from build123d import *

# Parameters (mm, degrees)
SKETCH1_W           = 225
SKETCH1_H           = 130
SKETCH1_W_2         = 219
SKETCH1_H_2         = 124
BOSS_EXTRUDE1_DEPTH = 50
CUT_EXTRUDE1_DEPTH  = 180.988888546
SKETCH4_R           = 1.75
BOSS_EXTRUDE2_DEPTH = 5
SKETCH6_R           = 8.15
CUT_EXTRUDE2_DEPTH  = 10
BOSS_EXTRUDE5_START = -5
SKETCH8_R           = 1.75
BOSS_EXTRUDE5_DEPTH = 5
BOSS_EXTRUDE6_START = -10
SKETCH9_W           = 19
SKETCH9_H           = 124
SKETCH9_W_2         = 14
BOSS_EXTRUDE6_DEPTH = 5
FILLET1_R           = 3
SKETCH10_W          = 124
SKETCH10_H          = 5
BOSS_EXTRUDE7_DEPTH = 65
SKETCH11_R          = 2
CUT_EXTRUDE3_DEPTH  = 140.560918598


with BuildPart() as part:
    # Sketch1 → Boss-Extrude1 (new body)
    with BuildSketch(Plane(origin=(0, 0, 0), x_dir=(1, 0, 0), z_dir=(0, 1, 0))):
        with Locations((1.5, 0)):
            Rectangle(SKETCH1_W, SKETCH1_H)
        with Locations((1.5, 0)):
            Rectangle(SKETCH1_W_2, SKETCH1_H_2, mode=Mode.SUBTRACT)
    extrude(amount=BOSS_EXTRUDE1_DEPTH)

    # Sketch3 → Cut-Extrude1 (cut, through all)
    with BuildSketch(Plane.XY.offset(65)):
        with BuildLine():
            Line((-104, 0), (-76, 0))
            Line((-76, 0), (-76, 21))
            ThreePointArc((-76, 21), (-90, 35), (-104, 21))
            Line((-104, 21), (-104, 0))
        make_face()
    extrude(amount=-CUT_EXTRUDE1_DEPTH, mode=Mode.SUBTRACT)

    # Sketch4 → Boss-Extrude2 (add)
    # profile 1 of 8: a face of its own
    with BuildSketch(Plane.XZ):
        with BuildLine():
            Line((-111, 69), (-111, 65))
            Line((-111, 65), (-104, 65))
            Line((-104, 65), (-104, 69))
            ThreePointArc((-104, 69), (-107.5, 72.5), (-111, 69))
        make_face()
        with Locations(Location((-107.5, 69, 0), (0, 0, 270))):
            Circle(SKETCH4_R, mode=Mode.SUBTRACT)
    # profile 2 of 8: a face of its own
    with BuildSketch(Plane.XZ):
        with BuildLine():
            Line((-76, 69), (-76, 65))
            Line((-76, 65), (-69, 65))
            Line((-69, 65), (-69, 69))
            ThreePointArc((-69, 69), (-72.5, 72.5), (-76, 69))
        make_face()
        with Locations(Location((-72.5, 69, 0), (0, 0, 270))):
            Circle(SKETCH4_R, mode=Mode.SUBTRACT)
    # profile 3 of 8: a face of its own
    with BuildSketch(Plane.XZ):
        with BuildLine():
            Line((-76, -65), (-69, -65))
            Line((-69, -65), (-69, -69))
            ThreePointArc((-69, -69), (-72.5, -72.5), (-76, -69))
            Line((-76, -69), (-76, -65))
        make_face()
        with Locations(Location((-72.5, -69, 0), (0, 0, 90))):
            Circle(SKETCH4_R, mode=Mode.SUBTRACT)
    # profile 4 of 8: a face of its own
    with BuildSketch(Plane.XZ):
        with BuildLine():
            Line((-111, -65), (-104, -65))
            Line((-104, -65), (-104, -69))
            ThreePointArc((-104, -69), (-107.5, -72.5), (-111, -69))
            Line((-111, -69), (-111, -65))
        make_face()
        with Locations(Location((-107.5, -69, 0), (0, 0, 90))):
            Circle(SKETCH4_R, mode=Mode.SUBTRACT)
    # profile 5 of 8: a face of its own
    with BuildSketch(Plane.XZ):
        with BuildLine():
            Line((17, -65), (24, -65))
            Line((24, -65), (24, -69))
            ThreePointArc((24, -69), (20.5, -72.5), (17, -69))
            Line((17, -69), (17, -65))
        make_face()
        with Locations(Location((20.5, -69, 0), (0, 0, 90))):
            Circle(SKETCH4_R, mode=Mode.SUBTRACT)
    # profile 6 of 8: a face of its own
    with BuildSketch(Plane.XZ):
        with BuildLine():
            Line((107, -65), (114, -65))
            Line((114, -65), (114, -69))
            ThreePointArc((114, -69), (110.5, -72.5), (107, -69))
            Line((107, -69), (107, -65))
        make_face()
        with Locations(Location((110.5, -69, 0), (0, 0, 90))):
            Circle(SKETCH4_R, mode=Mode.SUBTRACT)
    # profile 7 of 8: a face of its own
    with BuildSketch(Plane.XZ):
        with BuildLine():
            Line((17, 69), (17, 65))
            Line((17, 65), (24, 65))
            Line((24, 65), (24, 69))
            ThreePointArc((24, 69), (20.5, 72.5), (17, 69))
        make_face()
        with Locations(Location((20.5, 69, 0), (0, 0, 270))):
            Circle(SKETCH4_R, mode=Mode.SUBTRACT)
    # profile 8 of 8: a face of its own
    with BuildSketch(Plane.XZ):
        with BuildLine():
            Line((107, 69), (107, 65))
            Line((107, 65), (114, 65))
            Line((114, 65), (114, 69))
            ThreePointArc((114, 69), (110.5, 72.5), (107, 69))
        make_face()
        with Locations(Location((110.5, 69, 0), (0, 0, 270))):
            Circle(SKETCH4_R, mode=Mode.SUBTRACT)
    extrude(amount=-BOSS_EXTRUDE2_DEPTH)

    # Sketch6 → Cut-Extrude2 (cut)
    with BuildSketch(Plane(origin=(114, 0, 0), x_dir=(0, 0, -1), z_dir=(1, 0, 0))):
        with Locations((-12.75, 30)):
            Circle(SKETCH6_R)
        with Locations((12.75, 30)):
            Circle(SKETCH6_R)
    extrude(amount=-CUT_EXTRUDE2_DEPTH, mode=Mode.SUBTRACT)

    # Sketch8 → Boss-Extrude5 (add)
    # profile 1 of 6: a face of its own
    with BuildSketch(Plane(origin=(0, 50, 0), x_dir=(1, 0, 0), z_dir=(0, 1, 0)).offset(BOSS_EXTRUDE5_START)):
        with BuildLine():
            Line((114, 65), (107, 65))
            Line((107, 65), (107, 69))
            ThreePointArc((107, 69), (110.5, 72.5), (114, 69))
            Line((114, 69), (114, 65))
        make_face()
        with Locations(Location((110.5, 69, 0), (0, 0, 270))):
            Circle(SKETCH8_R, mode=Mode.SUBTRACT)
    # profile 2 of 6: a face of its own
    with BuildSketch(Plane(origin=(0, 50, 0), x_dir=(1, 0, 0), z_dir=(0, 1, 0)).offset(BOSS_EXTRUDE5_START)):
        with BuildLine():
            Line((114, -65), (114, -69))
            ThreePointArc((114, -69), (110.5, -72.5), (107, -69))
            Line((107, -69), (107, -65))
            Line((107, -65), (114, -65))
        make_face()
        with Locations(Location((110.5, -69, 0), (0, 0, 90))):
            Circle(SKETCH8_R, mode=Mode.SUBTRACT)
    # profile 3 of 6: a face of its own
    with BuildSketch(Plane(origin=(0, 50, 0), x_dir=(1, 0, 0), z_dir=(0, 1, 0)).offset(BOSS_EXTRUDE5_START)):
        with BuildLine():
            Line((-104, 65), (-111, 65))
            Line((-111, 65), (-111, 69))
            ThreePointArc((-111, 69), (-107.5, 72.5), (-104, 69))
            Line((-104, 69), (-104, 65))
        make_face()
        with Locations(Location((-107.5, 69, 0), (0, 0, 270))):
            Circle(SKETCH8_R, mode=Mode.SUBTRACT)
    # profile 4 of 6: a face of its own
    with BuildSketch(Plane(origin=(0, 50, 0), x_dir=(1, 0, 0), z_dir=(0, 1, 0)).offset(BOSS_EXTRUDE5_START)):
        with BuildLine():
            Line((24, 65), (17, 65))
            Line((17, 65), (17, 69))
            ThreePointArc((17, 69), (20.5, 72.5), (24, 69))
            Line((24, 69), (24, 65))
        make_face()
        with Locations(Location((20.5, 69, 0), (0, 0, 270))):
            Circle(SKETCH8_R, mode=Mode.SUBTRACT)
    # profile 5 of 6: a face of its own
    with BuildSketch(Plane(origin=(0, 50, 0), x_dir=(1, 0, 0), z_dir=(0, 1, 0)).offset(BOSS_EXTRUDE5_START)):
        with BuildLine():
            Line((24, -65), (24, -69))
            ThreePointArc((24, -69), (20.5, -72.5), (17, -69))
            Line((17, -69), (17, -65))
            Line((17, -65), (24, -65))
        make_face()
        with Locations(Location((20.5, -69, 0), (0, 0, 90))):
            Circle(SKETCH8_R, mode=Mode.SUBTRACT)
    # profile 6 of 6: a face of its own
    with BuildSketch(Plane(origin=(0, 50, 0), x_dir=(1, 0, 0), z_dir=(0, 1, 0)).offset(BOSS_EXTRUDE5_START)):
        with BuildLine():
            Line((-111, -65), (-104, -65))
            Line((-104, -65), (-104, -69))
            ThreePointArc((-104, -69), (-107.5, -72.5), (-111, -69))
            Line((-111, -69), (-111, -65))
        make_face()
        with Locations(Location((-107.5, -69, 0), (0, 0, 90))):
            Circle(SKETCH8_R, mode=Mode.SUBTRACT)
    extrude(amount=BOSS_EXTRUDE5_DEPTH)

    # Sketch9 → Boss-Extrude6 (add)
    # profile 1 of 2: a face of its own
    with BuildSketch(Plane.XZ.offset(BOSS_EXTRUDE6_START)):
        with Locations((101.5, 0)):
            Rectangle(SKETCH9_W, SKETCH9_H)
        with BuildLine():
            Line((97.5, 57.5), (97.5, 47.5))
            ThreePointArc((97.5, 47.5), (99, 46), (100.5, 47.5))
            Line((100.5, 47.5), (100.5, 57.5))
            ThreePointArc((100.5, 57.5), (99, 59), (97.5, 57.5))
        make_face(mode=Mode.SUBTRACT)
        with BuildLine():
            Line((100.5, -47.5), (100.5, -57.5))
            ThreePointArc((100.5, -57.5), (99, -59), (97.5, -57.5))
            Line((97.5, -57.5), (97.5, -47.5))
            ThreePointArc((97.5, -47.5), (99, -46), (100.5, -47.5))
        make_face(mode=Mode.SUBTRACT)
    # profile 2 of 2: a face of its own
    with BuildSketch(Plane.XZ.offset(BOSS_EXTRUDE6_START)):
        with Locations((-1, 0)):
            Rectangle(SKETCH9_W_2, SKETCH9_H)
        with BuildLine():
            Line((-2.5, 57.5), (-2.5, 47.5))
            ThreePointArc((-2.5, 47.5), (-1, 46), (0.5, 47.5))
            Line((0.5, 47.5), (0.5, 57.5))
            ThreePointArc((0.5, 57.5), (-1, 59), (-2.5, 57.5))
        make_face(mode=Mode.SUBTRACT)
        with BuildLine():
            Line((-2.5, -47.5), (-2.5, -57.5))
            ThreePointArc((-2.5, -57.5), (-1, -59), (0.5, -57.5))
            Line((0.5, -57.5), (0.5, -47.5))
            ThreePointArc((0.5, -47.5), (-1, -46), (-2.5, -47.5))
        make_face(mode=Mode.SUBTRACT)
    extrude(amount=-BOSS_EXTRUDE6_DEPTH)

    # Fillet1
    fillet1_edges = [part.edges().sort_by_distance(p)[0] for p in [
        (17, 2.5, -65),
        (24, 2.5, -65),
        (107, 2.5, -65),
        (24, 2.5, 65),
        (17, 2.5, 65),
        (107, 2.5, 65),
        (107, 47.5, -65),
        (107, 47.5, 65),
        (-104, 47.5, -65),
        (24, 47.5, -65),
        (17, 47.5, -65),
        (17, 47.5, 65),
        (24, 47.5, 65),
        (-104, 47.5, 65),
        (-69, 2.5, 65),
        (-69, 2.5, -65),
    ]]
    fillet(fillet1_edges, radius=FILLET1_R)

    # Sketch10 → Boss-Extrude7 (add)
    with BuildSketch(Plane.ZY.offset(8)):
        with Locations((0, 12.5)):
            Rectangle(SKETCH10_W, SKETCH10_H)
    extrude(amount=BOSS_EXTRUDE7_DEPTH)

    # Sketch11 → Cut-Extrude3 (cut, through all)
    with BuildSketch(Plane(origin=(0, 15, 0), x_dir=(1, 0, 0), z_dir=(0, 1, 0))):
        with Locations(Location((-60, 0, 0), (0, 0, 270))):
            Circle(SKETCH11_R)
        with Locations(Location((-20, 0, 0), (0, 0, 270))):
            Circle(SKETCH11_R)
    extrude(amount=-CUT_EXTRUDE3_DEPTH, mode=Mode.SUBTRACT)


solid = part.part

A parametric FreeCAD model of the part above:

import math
import FreeCAD as App
import Part
import Sketcher
from FreeCAD import Vector
Q = App.Units.Quantity


def edges_at(feature, points):
    """Names of the edges that pass closest to the given points."""
    edges = feature.Shape.Edges
    near = lambda p: min(range(len(edges)), key=lambda i: edges[i].distToShape(Part.Vertex(*p))[0])
    return sorted({f"Edge{near(p) + 1}" for p in points})


def add_polygon(sketch, points):
    """Adds a closed chain of lines whose ends are joined by coincident constraints."""
    first, n = sketch.GeometryCount, len(points)
    for a, b in zip(points, points[1:] + points[:1]):
        sketch.addGeometry(Part.LineSegment(App.Vector(*a, 0), App.Vector(*b, 0)), False)
    for i in range(n):
        sketch.addConstraint(Sketcher.Constraint("Coincident", first + i, 2, first + (i + 1) % n, 1))

doc = App.newDocument("Part")
body = doc.addObject("PartDesign::Body", "Body")

# Sketch on XZ plane
sketch1 = body.newObject("Sketcher::SketchObject", "Sketch")
sketch1.AttachmentSupport = (doc.getObject("XZ_Plane"), [""])
sketch1.MapMode = "FlatFace"
add_polygon(sketch1, [(-111, -65), (-111, 65), (114, 65), (114, -65)])  # lines 0-3
add_polygon(sketch1, [(111, 62), (-108, 62), (-108, -62), (111, -62)])  # lines 4-7
sketch1.addConstraint(Sketcher.Constraint("Vertical", 0))
sketch1.addConstraint(Sketcher.Constraint("Horizontal", 1))
sketch1.addConstraint(Sketcher.Constraint("Vertical", 2))
sketch1.addConstraint(Sketcher.Constraint("Horizontal", 3))
sketch1.addConstraint(Sketcher.Constraint("Horizontal", 4))
sketch1.addConstraint(Sketcher.Constraint("Vertical", 5))
sketch1.addConstraint(Sketcher.Constraint("Horizontal", 6))
sketch1.addConstraint(Sketcher.Constraint("Vertical", 7))
sketch1.addConstraint(Sketcher.Constraint("DistanceX", 1, 1, 1, 2, Q("225 mm")))
sketch1.addConstraint(Sketcher.Constraint("DistanceX", 4, 2, 4, 1, Q("219 mm")))
sketch1.addConstraint(Sketcher.Constraint("DistanceY", 0, 1, 0, 2, Q("130 mm")))
sketch1.addConstraint(Sketcher.Constraint("DistanceY", 5, 2, 5, 1, Q("124 mm")))
sketch1.addConstraint(Sketcher.Constraint("DistanceX", 0, 2, -1, 1, Q("111 mm")))
sketch1.addConstraint(Sketcher.Constraint("DistanceY", -1, 1, 0, 2, Q("65 mm")))
sketch1.addConstraint(Sketcher.Constraint("DistanceX", 4, 2, -1, 1, Q("108 mm")))
sketch1.addConstraint(Sketcher.Constraint("DistanceY", -1, 1, 4, 2, Q("62 mm")))
pad1 = body.newObject("PartDesign::Pad", "Pad")
pad1.Profile = sketch1
pad1.Length = 50
pad1.Reversed = True

# Sketch on XY plane
sketch2 = body.newObject("Sketcher::SketchObject", "Sketch001")
sketch2.AttachmentSupport = (doc.getObject("XY_Plane"), [""])
sketch2.MapMode = "FlatFace"
sketch2.AttachmentOffset = App.Placement(Vector(0, 0, 65), App.Rotation())
sketch2.addGeometry(Part.LineSegment(Vector(-104, 0, 0), Vector(-76, 0, 0)), False)
sketch2.addGeometry(Part.LineSegment(Vector(-76, 0, 0), Vector(-76, 21, 0)), False)
sketch2.addGeometry(Part.ArcOfCircle(Part.Circle(Vector(-90, 21, 0), Vector(0, 0, 1), 14), math.radians(0), math.radians(180)), False)
sketch2.addGeometry(Part.LineSegment(Vector(-104, 21, 0), Vector(-104, 0, 0)), False)
sketch2.addConstraint(Sketcher.Constraint("Coincident", 0, 2, 1, 1))
sketch2.addConstraint(Sketcher.Constraint("Tangent", 1, 2, 2, 1))
sketch2.addConstraint(Sketcher.Constraint("Tangent", 2, 2, 3, 1))
sketch2.addConstraint(Sketcher.Constraint("Coincident", 3, 2, 0, 1))
sketch2.addConstraint(Sketcher.Constraint("Horizontal", 0))
sketch2.addConstraint(Sketcher.Constraint("Vertical", 1))
sketch2.addConstraint(Sketcher.Constraint("Vertical", 3))
sketch2.addConstraint(Sketcher.Constraint("PointOnObject", 0, 2, -1))
sketch2.addConstraint(Sketcher.Constraint("Radius", 2, Q("14 mm")))
sketch2.addConstraint(Sketcher.Constraint("DistanceY", 1, 1, 1, 2, Q("21 mm")))
sketch2.addConstraint(Sketcher.Constraint("DistanceX", 2, 3, -1, 1, Q("90 mm")))
pocket1 = body.newObject("PartDesign::Pocket", "Pocket")
pocket1.Profile = sketch2
pocket1.Type = "ThroughAll"

# Sketch on XZ plane
sketch3 = body.newObject("Sketcher::SketchObject", "Sketch002")
sketch3.AttachmentSupport = (doc.getObject("XZ_Plane"), [""])
sketch3.MapMode = "FlatFace"
sketch3.addGeometry(Part.LineSegment(Vector(-111, 69, 0), Vector(-111, 65, 0)), False)
sketch3.addGeometry(Part.LineSegment(Vector(-111, 65, 0), Vector(-104, 65, 0)), False)
sketch3.addGeometry(Part.LineSegment(Vector(-104, 65, 0), Vector(-104, 69, 0)), False)
sketch3.addGeometry(Part.ArcOfCircle(Part.Circle(Vector(-107.5, 69, 0), Vector(0, 0, 1), 3.5), math.radians(0), math.radians(180)), False)
sketch3.addGeometry(Part.Circle(Vector(-107.5, 69, 0), Vector(0, 0, 1), 1.8), False)
sketch3.addGeometry(Part.LineSegment(Vector(-76, 69, 0), Vector(-76, 65, 0)), False)
sketch3.addGeometry(Part.LineSegment(Vector(-76, 65, 0), Vector(-69, 65, 0)), False)
sketch3.addGeometry(Part.LineSegment(Vector(-69, 65, 0), Vector(-69, 69, 0)), False)
sketch3.addGeometry(Part.ArcOfCircle(Part.Circle(Vector(-72.5, 69, 0), Vector(0, 0, 1), 3.5), math.radians(0), math.radians(180)), False)
sketch3.addGeometry(Part.Circle(Vector(-72.5, 69, 0), Vector(0, 0, 1), 1.8), False)
sketch3.addGeometry(Part.LineSegment(Vector(-69, -65, 0), Vector(-76, -65, 0)), False)
sketch3.addGeometry(Part.LineSegment(Vector(-76, -65, 0), Vector(-76, -69, 0)), False)
sketch3.addGeometry(Part.ArcOfCircle(Part.Circle(Vector(-72.5, -69, 0), Vector(0, 0, 1), 3.5), math.radians(180), math.radians(360)), False)
sketch3.addGeometry(Part.LineSegment(Vector(-69, -69, 0), Vector(-69, -65, 0)), False)
sketch3.addGeometry(Part.Circle(Vector(-72.5, -69, 0), Vector(0, 0, 1), 1.8), False)
sketch3.addGeometry(Part.LineSegment(Vector(-104, -65, 0), Vector(-111, -65, 0)), False)
sketch3.addGeometry(Part.LineSegment(Vector(-111, -65, 0), Vector(-111, -69, 0)), False)
sketch3.addGeometry(Part.ArcOfCircle(Part.Circle(Vector(-107.5, -69, 0), Vector(0, 0, 1), 3.5), math.radians(180), math.radians(360)), False)
sketch3.addGeometry(Part.LineSegment(Vector(-104, -69, 0), Vector(-104, -65, 0)), False)
sketch3.addGeometry(Part.Circle(Vector(-107.5, -69, 0), Vector(0, 0, 1), 1.8), False)
sketch3.addGeometry(Part.LineSegment(Vector(24, -65, 0), Vector(17, -65, 0)), False)
sketch3.addGeometry(Part.LineSegment(Vector(17, -65, 0), Vector(17, -69, 0)), False)
sketch3.addGeometry(Part.ArcOfCircle(Part.Circle(Vector(20.5, -69, 0), Vector(0, 0, 1), 3.5), math.radians(180), math.radians(360)), False)
sketch3.addGeometry(Part.LineSegment(Vector(24, -69, 0), Vector(24, -65, 0)), False)
sketch3.addGeometry(Part.Circle(Vector(20.5, -69, 0), Vector(0, 0, 1), 1.8), False)
sketch3.addGeometry(Part.LineSegment(Vector(114, -65, 0), Vector(107, -65, 0)), False)
sketch3.addGeometry(Part.LineSegment(Vector(107, -65, 0), Vector(107, -69, 0)), False)
sketch3.addGeometry(Part.ArcOfCircle(Part.Circle(Vector(110.5, -69, 0), Vector(0, 0, 1), 3.5), math.radians(180), math.radians(360)), False)
sketch3.addGeometry(Part.LineSegment(Vector(114, -69, 0), Vector(114, -65, 0)), False)
sketch3.addGeometry(Part.Circle(Vector(110.5, -69, 0), Vector(0, 0, 1), 1.8), False)
sketch3.addGeometry(Part.LineSegment(Vector(17, 69, 0), Vector(17, 65, 0)), False)
sketch3.addGeometry(Part.LineSegment(Vector(17, 65, 0), Vector(24, 65, 0)), False)
sketch3.addGeometry(Part.LineSegment(Vector(24, 65, 0), Vector(24, 69, 0)), False)
sketch3.addGeometry(Part.ArcOfCircle(Part.Circle(Vector(20.5, 69, 0), Vector(0, 0, 1), 3.5), math.radians(0), math.radians(180)), False)
sketch3.addGeometry(Part.Circle(Vector(20.5, 69, 0), Vector(0, 0, 1), 1.8), False)
sketch3.addGeometry(Part.LineSegment(Vector(107, 69, 0), Vector(107, 65, 0)), False)
sketch3.addGeometry(Part.LineSegment(Vector(107, 65, 0), Vector(114, 65, 0)), False)
sketch3.addGeometry(Part.LineSegment(Vector(114, 65, 0), Vector(114, 69, 0)), False)
sketch3.addGeometry(Part.ArcOfCircle(Part.Circle(Vector(110.5, 69, 0), Vector(0, 0, 1), 3.5), math.radians(0), math.radians(180)), False)
sketch3.addGeometry(Part.Circle(Vector(110.5, 69, 0), Vector(0, 0, 1), 1.8), False)
sketch3.addConstraint(Sketcher.Constraint("Coincident", 0, 2, 1, 1))
sketch3.addConstraint(Sketcher.Constraint("Coincident", 1, 2, 2, 1))
sketch3.addConstraint(Sketcher.Constraint("Tangent", 2, 2, 3, 1))
sketch3.addConstraint(Sketcher.Constraint("Tangent", 3, 2, 0, 1))
sketch3.addConstraint(Sketcher.Constraint("Coincident", 5, 2, 6, 1))
sketch3.addConstraint(Sketcher.Constraint("Coincident", 6, 2, 7, 1))
sketch3.addConstraint(Sketcher.Constraint("Tangent", 7, 2, 8, 1))
sketch3.addConstraint(Sketcher.Constraint("Tangent", 8, 2, 5, 1))
sketch3.addConstraint(Sketcher.Constraint("Coincident", 10, 2, 11, 1))
sketch3.addConstraint(Sketcher.Constraint("Tangent", 11, 2, 12, 1))
sketch3.addConstraint(Sketcher.Constraint("Tangent", 12, 2, 13, 1))
sketch3.addConstraint(Sketcher.Constraint("Coincident", 13, 2, 10, 1))
sketch3.addConstraint(Sketcher.Constraint("Coincident", 15, 2, 16, 1))
sketch3.addConstraint(Sketcher.Constraint("Tangent", 16, 2, 17, 1))
sketch3.addConstraint(Sketcher.Constraint("Tangent", 17, 2, 18, 1))
sketch3.addConstraint(Sketcher.Constraint("Coincident", 18, 2, 15, 1))
sketch3.addConstraint(Sketcher.Constraint("Coincident", 20, 2, 21, 1))
sketch3.addConstraint(Sketcher.Constraint("Tangent", 21, 2, 22, 1))
sketch3.addConstraint(Sketcher.Constraint("Tangent", 22, 2, 23, 1))
sketch3.addConstraint(Sketcher.Constraint("Coincident", 23, 2, 20, 1))
sketch3.addConstraint(Sketcher.Constraint("Coincident", 25, 2, 26, 1))
sketch3.addConstraint(Sketcher.Constraint("Tangent", 26, 2, 27, 1))
sketch3.addConstraint(Sketcher.Constraint("Tangent", 27, 2, 28, 1))
sketch3.addConstraint(Sketcher.Constraint("Coincident", 28, 2, 25, 1))
sketch3.addConstraint(Sketcher.Constraint("Coincident", 30, 2, 31, 1))
sketch3.addConstraint(Sketcher.Constraint("Coincident", 31, 2, 32, 1))
sketch3.addConstraint(Sketcher.Constraint("Tangent", 32, 2, 33, 1))
sketch3.addConstraint(Sketcher.Constraint("Tangent", 33, 2, 30, 1))
sketch3.addConstraint(Sketcher.Constraint("Coincident", 35, 2, 36, 1))
sketch3.addConstraint(Sketcher.Constraint("Coincident", 36, 2, 37, 1))
sketch3.addConstraint(Sketcher.Constraint("Tangent", 37, 2, 38, 1))
sketch3.addConstraint(Sketcher.Constraint("Tangent", 38, 2, 35, 1))
sketch3.addConstraint(Sketcher.Constraint("Vertical", 0))
sketch3.addConstraint(Sketcher.Constraint("Horizontal", 1))
sketch3.addConstraint(Sketcher.Constraint("Vertical", 2))
sketch3.addConstraint(Sketcher.Constraint("Vertical", 5))
sketch3.addConstraint(Sketcher.Constraint("Horizontal", 6))
sketch3.addConstraint(Sketcher.Constraint("Vertical", 7))
sketch3.addConstraint(Sketcher.Constraint("Horizontal", 10))
sketch3.addConstraint(Sketcher.Constraint("Vertical", 11))
sketch3.addConstraint(Sketcher.Constraint("Vertical", 13))
sketch3.addConstraint(Sketcher.Constraint("Horizontal", 15))
sketch3.addConstraint(Sketcher.Constraint("Vertical", 16))
sketch3.addConstraint(Sketcher.Constraint("Vertical", 18))
sketch3.addConstraint(Sketcher.Constraint("Horizontal", 20))
sketch3.addConstraint(Sketcher.Constraint("Vertical", 21))
sketch3.addConstraint(Sketcher.Constraint("Vertical", 23))
sketch3.addConstraint(Sketcher.Constraint("Horizontal", 25))
sketch3.addConstraint(Sketcher.Constraint("Vertical", 26))
sketch3.addConstraint(Sketcher.Constraint("Vertical", 28))
sketch3.addConstraint(Sketcher.Constraint("Vertical", 30))
sketch3.addConstraint(Sketcher.Constraint("Horizontal", 31))
sketch3.addConstraint(Sketcher.Constraint("Vertical", 32))
sketch3.addConstraint(Sketcher.Constraint("Vertical", 35))
sketch3.addConstraint(Sketcher.Constraint("Horizontal", 36))
sketch3.addConstraint(Sketcher.Constraint("Vertical", 37))
sketch3.addConstraint(Sketcher.Constraint("Coincident", 4, 3, 3, 3))
sketch3.addConstraint(Sketcher.Constraint("Coincident", 9, 3, 8, 3))
sketch3.addConstraint(Sketcher.Constraint("Coincident", 14, 3, 12, 3))
sketch3.addConstraint(Sketcher.Constraint("Coincident", 19, 3, 17, 3))
sketch3.addConstraint(Sketcher.Constraint("Coincident", 24, 3, 22, 3))
sketch3.addConstraint(Sketcher.Constraint("Coincident", 29, 3, 27, 3))
sketch3.addConstraint(Sketcher.Constraint("Coincident", 34, 3, 33, 3))
sketch3.addConstraint(Sketcher.Constraint("Coincident", 39, 3, 38, 3))
sketch3.addConstraint(Sketcher.Constraint("Equal", 3, 8))
sketch3.addConstraint(Sketcher.Constraint("Equal", 4, 9))
sketch3.addConstraint(Sketcher.Constraint("Equal", 8, 12))
sketch3.addConstraint(Sketcher.Constraint("Equal", 9, 14))
sketch3.addConstraint(Sketcher.Constraint("Equal", 12, 17))
sketch3.addConstraint(Sketcher.Constraint("Equal", 14, 19))
sketch3.addConstraint(Sketcher.Constraint("Equal", 17, 22))
sketch3.addConstraint(Sketcher.Constraint("Equal", 19, 24))
sketch3.addConstraint(Sketcher.Constraint("Equal", 22, 27))
sketch3.addConstraint(Sketcher.Constraint("Equal", 24, 29))
sketch3.addConstraint(Sketcher.Constraint("Equal", 27, 33))
sketch3.addConstraint(Sketcher.Constraint("Equal", 29, 34))
sketch3.addConstraint(Sketcher.Constraint("Equal", 33, 38))
sketch3.addConstraint(Sketcher.Constraint("Equal", 34, 39))
sketch3.addConstraint(Sketcher.Constraint("Symmetric", 8, 3, 12, 3, -1))
sketch3.addConstraint(Sketcher.Constraint("Symmetric", 3, 3, 17, 3, -1))
sketch3.addConstraint(Sketcher.Constraint("Symmetric", 22, 3, 33, 3, -1))
sketch3.addConstraint(Sketcher.Constraint("Symmetric", 27, 3, 38, 3, -1))
sketch3.addConstraint(Sketcher.Constraint("Horizontal", 4, 3, 8, 3))
sketch3.addConstraint(Sketcher.Constraint("Horizontal", 19, 3, 22, 3))
sketch3.addConstraint(Sketcher.Constraint("Horizontal", 24, 3, 27, 3))
sketch3.addConstraint(Sketcher.Constraint("Horizontal", 1, 2, 5, 2))
sketch3.addConstraint(Sketcher.Constraint("Horizontal", 13, 2, 15, 2))
sketch3.addConstraint(Sketcher.Constraint("Horizontal", 18, 2, 20, 2))
sketch3.addConstraint(Sketcher.Constraint("Horizontal", 23, 2, 25, 2))
sketch3.addConstraint(Sketcher.Constraint("Horizontal", 6, 2, 30, 2))
sketch3.addConstraint(Sketcher.Constraint("Horizontal", 31, 2, 35, 2))
sketch3.addConstraint(Sketcher.Constraint("Equal", 7, 11))
sketch3.addConstraint(Sketcher.Constraint("Diameter", 4, Q("3.5 mm")))
sketch3.addConstraint(Sketcher.Constraint("Radius", 3, Q("3.5 mm")))
sketch3.addConstraint(Sketcher.Constraint("DistanceY", 0, 2, 0, 1, Q("4 mm")))
sketch3.addConstraint(Sketcher.Constraint("DistanceY", -1, 1, 3, 3, Q("69 mm")))
sketch3.addConstraint(Sketcher.Constraint("DistanceX", 0, 2, -1, 1, Q("111 mm")))
sketch3.addConstraint(Sketcher.Constraint("DistanceX", 5, 2, -1, 1, Q("76 mm")))
sketch3.addConstraint(Sketcher.Constraint("DistanceX", -1, 1, 20, 2, Q("17 mm")))
sketch3.addConstraint(Sketcher.Constraint("DistanceX", -1, 1, 25, 2, Q("107 mm")))
pad2 = body.newObject("PartDesign::Pad", "Pad001")
pad2.Profile = sketch3
pad2.Length = 5
pad2.Reversed = True

# Sketch on YZ plane
sketch4 = body.newObject("Sketcher::SketchObject", "Sketch003")
sketch4.AttachmentSupport = (doc.getObject("YZ_Plane"), [""])
sketch4.MapMode = "FlatFace"
sketch4.AttachmentOffset = App.Placement(Vector(0, 0, 114), App.Rotation())
sketch4.addGeometry(Part.Circle(Vector(30, 13, 0), Vector(0, 0, 1), 8), False)
sketch4.addGeometry(Part.Circle(Vector(30, -13, 0), Vector(0, 0, 1), 8), False)
sketch4.addConstraint(Sketcher.Constraint("Equal", 0, 1))
sketch4.addConstraint(Sketcher.Constraint("Symmetric", 0, 3, 1, 3, -1))
sketch4.addConstraint(Sketcher.Constraint("Diameter", 0, Q("16.3 mm")))
sketch4.addConstraint(Sketcher.Constraint("DistanceX", -1, 1, 0, 3, Q("30 mm")))
sketch4.addConstraint(Sketcher.Constraint("DistanceY", 1, 3, 0, 3, Q("25.5 mm")))
pocket2 = body.newObject("PartDesign::Pocket", "Pocket001")
pocket2.Profile = sketch4
pocket2.Length = 10

# Sketch on XZ plane
sketch5 = body.newObject("Sketcher::SketchObject", "Sketch004")
sketch5.AttachmentSupport = (doc.getObject("XZ_Plane"), [""])
sketch5.MapMode = "FlatFace"
sketch5.AttachmentOffset = App.Placement(Vector(0, 0, -45), App.Rotation())
sketch5.addGeometry(Part.LineSegment(Vector(107, -65, 0), Vector(114, -65, 0)), False)
sketch5.addGeometry(Part.LineSegment(Vector(114, -65, 0), Vector(114, -69, 0)), False)
sketch5.addGeometry(Part.ArcOfCircle(Part.Circle(Vector(110.5, -69, 0), Vector(0, 0, 1), 3.5), math.radians(180), math.radians(360)), False)
sketch5.addGeometry(Part.LineSegment(Vector(107, -69, 0), Vector(107, -65, 0)), False)
sketch5.addGeometry(Part.Circle(Vector(110.5, -69, 0), Vector(0, 0, 1), 1.8), False)
sketch5.addGeometry(Part.LineSegment(Vector(114, 69, 0), Vector(114, 65, 0)), False)
sketch5.addGeometry(Part.LineSegment(Vector(114, 65, 0), Vector(107, 65, 0)), False)
sketch5.addGeometry(Part.LineSegment(Vector(107, 65, 0), Vector(107, 69, 0)), False)
sketch5.addGeometry(Part.ArcOfCircle(Part.Circle(Vector(110.5, 69, 0), Vector(0, 0, 1), 3.5), math.radians(0), math.radians(180)), False)
sketch5.addGeometry(Part.Circle(Vector(110.5, 69, 0), Vector(0, 0, 1), 1.8), False)
sketch5.addGeometry(Part.LineSegment(Vector(-111, -65, 0), Vector(-104, -65, 0)), False)
sketch5.addGeometry(Part.LineSegment(Vector(-104, -65, 0), Vector(-104, -69, 0)), False)
sketch5.addGeometry(Part.ArcOfCircle(Part.Circle(Vector(-107.5, -69, 0), Vector(0, 0, 1), 3.5), math.radians(180), math.radians(360)), False)
sketch5.addGeometry(Part.LineSegment(Vector(-111, -69, 0), Vector(-111, -65, 0)), False)
sketch5.addGeometry(Part.Circle(Vector(-107.5, -69, 0), Vector(0, 0, 1), 1.8), False)
sketch5.addGeometry(Part.LineSegment(Vector(17, -65, 0), Vector(24, -65, 0)), False)
sketch5.addGeometry(Part.LineSegment(Vector(24, -65, 0), Vector(24, -69, 0)), False)
sketch5.addGeometry(Part.ArcOfCircle(Part.Circle(Vector(20.5, -69, 0), Vector(0, 0, 1), 3.5), math.radians(180), math.radians(360)), False)
sketch5.addGeometry(Part.LineSegment(Vector(17, -69, 0), Vector(17, -65, 0)), False)
sketch5.addGeometry(Part.Circle(Vector(20.5, -69, 0), Vector(0, 0, 1), 1.8), False)
sketch5.addGeometry(Part.LineSegment(Vector(24, 69, 0), Vector(24, 65, 0)), False)
sketch5.addGeometry(Part.LineSegment(Vector(24, 65, 0), Vector(17, 65, 0)), False)
sketch5.addGeometry(Part.LineSegment(Vector(17, 65, 0), Vector(17, 69, 0)), False)
sketch5.addGeometry(Part.ArcOfCircle(Part.Circle(Vector(20.5, 69, 0), Vector(0, 0, 1), 3.5), math.radians(0), math.radians(180)), False)
sketch5.addGeometry(Part.Circle(Vector(20.5, 69, 0), Vector(0, 0, 1), 1.8), False)
sketch5.addGeometry(Part.LineSegment(Vector(-104, 65, 0), Vector(-111, 65, 0)), False)
sketch5.addGeometry(Part.LineSegment(Vector(-111, 65, 0), Vector(-111, 69, 0)), False)
sketch5.addGeometry(Part.ArcOfCircle(Part.Circle(Vector(-107.5, 69, 0), Vector(0, 0, 1), 3.5), math.radians(0), math.radians(180)), False)
sketch5.addGeometry(Part.LineSegment(Vector(-104, 69, 0), Vector(-104, 65, 0)), False)
sketch5.addGeometry(Part.Circle(Vector(-107.5, 69, 0), Vector(0, 0, 1), 1.8), False)
sketch5.addConstraint(Sketcher.Constraint("Coincident", 0, 2, 1, 1))
sketch5.addConstraint(Sketcher.Constraint("Tangent", 1, 2, 2, 2))
sketch5.addConstraint(Sketcher.Constraint("Tangent", 2, 1, 3, 1))
sketch5.addConstraint(Sketcher.Constraint("Coincident", 3, 2, 0, 1))
sketch5.addConstraint(Sketcher.Constraint("Coincident", 5, 2, 6, 1))
sketch5.addConstraint(Sketcher.Constraint("Coincident", 6, 2, 7, 1))
sketch5.addConstraint(Sketcher.Constraint("Tangent", 7, 2, 8, 2))
sketch5.addConstraint(Sketcher.Constraint("Tangent", 8, 1, 5, 1))
sketch5.addConstraint(Sketcher.Constraint("Coincident", 10, 2, 11, 1))
sketch5.addConstraint(Sketcher.Constraint("Tangent", 11, 2, 12, 2))
sketch5.addConstraint(Sketcher.Constraint("Tangent", 12, 1, 13, 1))
sketch5.addConstraint(Sketcher.Constraint("Coincident", 13, 2, 10, 1))
sketch5.addConstraint(Sketcher.Constraint("Coincident", 15, 2, 16, 1))
sketch5.addConstraint(Sketcher.Constraint("Tangent", 16, 2, 17, 2))
sketch5.addConstraint(Sketcher.Constraint("Tangent", 17, 1, 18, 1))
sketch5.addConstraint(Sketcher.Constraint("Coincident", 18, 2, 15, 1))
sketch5.addConstraint(Sketcher.Constraint("Coincident", 20, 2, 21, 1))
sketch5.addConstraint(Sketcher.Constraint("Coincident", 21, 2, 22, 1))
sketch5.addConstraint(Sketcher.Constraint("Tangent", 22, 2, 23, 2))
sketch5.addConstraint(Sketcher.Constraint("Tangent", 23, 1, 20, 1))
sketch5.addConstraint(Sketcher.Constraint("Coincident", 25, 2, 26, 1))
sketch5.addConstraint(Sketcher.Constraint("Tangent", 26, 2, 27, 2))
sketch5.addConstraint(Sketcher.Constraint("Tangent", 27, 1, 28, 1))
sketch5.addConstraint(Sketcher.Constraint("Coincident", 28, 2, 25, 1))
sketch5.addConstraint(Sketcher.Constraint("Horizontal", 0))
sketch5.addConstraint(Sketcher.Constraint("Vertical", 1))
sketch5.addConstraint(Sketcher.Constraint("Vertical", 3))
sketch5.addConstraint(Sketcher.Constraint("Vertical", 5))
sketch5.addConstraint(Sketcher.Constraint("Horizontal", 6))
sketch5.addConstraint(Sketcher.Constraint("Vertical", 7))
sketch5.addConstraint(Sketcher.Constraint("Horizontal", 10))
sketch5.addConstraint(Sketcher.Constraint("Vertical", 11))
sketch5.addConstraint(Sketcher.Constraint("Vertical", 13))
sketch5.addConstraint(Sketcher.Constraint("Horizontal", 15))
sketch5.addConstraint(Sketcher.Constraint("Vertical", 16))
sketch5.addConstraint(Sketcher.Constraint("Vertical", 18))
sketch5.addConstraint(Sketcher.Constraint("Vertical", 20))
sketch5.addConstraint(Sketcher.Constraint("Horizontal", 21))
sketch5.addConstraint(Sketcher.Constraint("Vertical", 22))
sketch5.addConstraint(Sketcher.Constraint("Horizontal", 25))
sketch5.addConstraint(Sketcher.Constraint("Vertical", 26))
sketch5.addConstraint(Sketcher.Constraint("Vertical", 28))
sketch5.addConstraint(Sketcher.Constraint("Coincident", 4, 3, 2, 3))
sketch5.addConstraint(Sketcher.Constraint("Coincident", 9, 3, 8, 3))
sketch5.addConstraint(Sketcher.Constraint("Coincident", 14, 3, 12, 3))
sketch5.addConstraint(Sketcher.Constraint("Coincident", 19, 3, 17, 3))
sketch5.addConstraint(Sketcher.Constraint("Coincident", 24, 3, 23, 3))
sketch5.addConstraint(Sketcher.Constraint("Coincident", 29, 3, 27, 3))
sketch5.addConstraint(Sketcher.Constraint("Equal", 2, 8))
sketch5.addConstraint(Sketcher.Constraint("Equal", 4, 9))
sketch5.addConstraint(Sketcher.Constraint("Equal", 8, 12))
sketch5.addConstraint(Sketcher.Constraint("Equal", 9, 14))
sketch5.addConstraint(Sketcher.Constraint("Equal", 12, 17))
sketch5.addConstraint(Sketcher.Constraint("Equal", 14, 19))
sketch5.addConstraint(Sketcher.Constraint("Equal", 17, 23))
sketch5.addConstraint(Sketcher.Constraint("Equal", 19, 24))
sketch5.addConstraint(Sketcher.Constraint("Equal", 23, 27))
sketch5.addConstraint(Sketcher.Constraint("Equal", 24, 29))
sketch5.addConstraint(Sketcher.Constraint("Symmetric", 2, 3, 8, 3, -1))
sketch5.addConstraint(Sketcher.Constraint("Symmetric", 17, 3, 23, 3, -1))
sketch5.addConstraint(Sketcher.Constraint("Symmetric", 12, 3, 27, 3, -1))
sketch5.addConstraint(Sketcher.Constraint("Horizontal", 4, 3, 12, 3))
sketch5.addConstraint(Sketcher.Constraint("Horizontal", 14, 3, 17, 3))
sketch5.addConstraint(Sketcher.Constraint("Horizontal", 3, 2, 10, 2))
sketch5.addConstraint(Sketcher.Constraint("Horizontal", 13, 2, 15, 2))
sketch5.addConstraint(Sketcher.Constraint("Horizontal", 6, 2, 20, 2))
sketch5.addConstraint(Sketcher.Constraint("Horizontal", 21, 2, 25, 2))
sketch5.addConstraint(Sketcher.Constraint("Equal", 3, 5))
sketch5.addConstraint(Sketcher.Constraint("Diameter", 4, Q("3.5 mm")))
sketch5.addConstraint(Sketcher.Constraint("Radius", 2, Q("3.5 mm")))
sketch5.addConstraint(Sketcher.Constraint("DistanceY", 1, 2, 1, 1, Q("4 mm")))
sketch5.addConstraint(Sketcher.Constraint("DistanceY", 2, 3, -1, 1, Q("69 mm")))
sketch5.addConstraint(Sketcher.Constraint("DistanceX", -1, 1, 0, 2, Q("114 mm")))
sketch5.addConstraint(Sketcher.Constraint("DistanceX", 10, 2, -1, 1, Q("104 mm")))
sketch5.addConstraint(Sketcher.Constraint("DistanceX", -1, 1, 15, 2, Q("24 mm")))
pad3 = body.newObject("PartDesign::Pad", "Pad002")
pad3.Profile = sketch5
pad3.Length = 5
pad3.Reversed = True

# Sketch on XZ plane
sketch6 = body.newObject("Sketcher::SketchObject", "Sketch005")
sketch6.AttachmentSupport = (doc.getObject("XZ_Plane"), [""])
sketch6.MapMode = "FlatFace"
sketch6.AttachmentOffset = App.Placement(Vector(0, 0, -10), App.Rotation())
add_polygon(sketch6, [(92, 62), (92, -62), (111, -62), (111, 62)])  # lines 0-3
sketch6.addGeometry(Part.ArcOfCircle(Part.Circle(Vector(99, -47.5, 0), Vector(0, 0, 1), 1.5), math.radians(0), math.radians(180)), False)  # 4
sketch6.addGeometry(Part.LineSegment(Vector(100.5, -47.5, 0), Vector(100.5, -57.5, 0)), False)  # 5
sketch6.addGeometry(Part.ArcOfCircle(Part.Circle(Vector(99, -57.5, 0), Vector(0, 0, 1), 1.5), math.radians(180), math.radians(360)), False)  # 6
sketch6.addGeometry(Part.LineSegment(Vector(97.5, -57.5, 0), Vector(97.5, -47.5, 0)), False)  # 7
sketch6.addGeometry(Part.LineSegment(Vector(97.5, 47.5, 0), Vector(97.5, 57.5, 0)), False)  # 8
sketch6.addGeometry(Part.ArcOfCircle(Part.Circle(Vector(99, 57.5, 0), Vector(0, 0, 1), 1.5), math.radians(0), math.radians(180)), False)  # 9
sketch6.addGeometry(Part.LineSegment(Vector(100.5, 57.5, 0), Vector(100.5, 47.5, 0)), False)  # 10
sketch6.addGeometry(Part.ArcOfCircle(Part.Circle(Vector(99, 47.5, 0), Vector(0, 0, 1), 1.5), math.radians(180), math.radians(360)), False)  # 11
add_polygon(sketch6, [(-8, 62), (-8, -62), (6, -62), (6, 62)])  # lines 12-15
sketch6.addGeometry(Part.LineSegment(Vector(-2.5, -57.5, 0), Vector(-2.5, -47.5, 0)), False)  # 16
sketch6.addGeometry(Part.ArcOfCircle(Part.Circle(Vector(-1, -47.5, 0), Vector(0, 0, 1), 1.5), math.radians(0), math.radians(180)), False)  # 17
sketch6.addGeometry(Part.LineSegment(Vector(0.5, -47.5, 0), Vector(0.5, -57.5, 0)), False)  # 18
sketch6.addGeometry(Part.ArcOfCircle(Part.Circle(Vector(-1, -57.5, 0), Vector(0, 0, 1), 1.5), math.radians(180), math.radians(360)), False)  # 19
sketch6.addGeometry(Part.LineSegment(Vector(-2.5, 47.5, 0), Vector(-2.5, 57.5, 0)), False)  # 20
sketch6.addGeometry(Part.ArcOfCircle(Part.Circle(Vector(-1, 57.5, 0), Vector(0, 0, 1), 1.5), math.radians(0), math.radians(180)), False)  # 21
sketch6.addGeometry(Part.LineSegment(Vector(0.5, 57.5, 0), Vector(0.5, 47.5, 0)), False)  # 22
sketch6.addGeometry(Part.ArcOfCircle(Part.Circle(Vector(-1, 47.5, 0), Vector(0, 0, 1), 1.5), math.radians(180), math.radians(360)), False)  # 23
sketch6.addConstraint(Sketcher.Constraint("Tangent", 4, 1, 5, 1))
sketch6.addConstraint(Sketcher.Constraint("Tangent", 5, 2, 6, 2))
sketch6.addConstraint(Sketcher.Constraint("Tangent", 6, 1, 7, 1))
sketch6.addConstraint(Sketcher.Constraint("Tangent", 7, 2, 4, 2))
sketch6.addConstraint(Sketcher.Constraint("Tangent", 8, 2, 9, 2))
sketch6.addConstraint(Sketcher.Constraint("Tangent", 9, 1, 10, 1))
sketch6.addConstraint(Sketcher.Constraint("Tangent", 10, 2, 11, 2))
sketch6.addConstraint(Sketcher.Constraint("Tangent", 11, 1, 8, 1))
sketch6.addConstraint(Sketcher.Constraint("Tangent", 16, 2, 17, 2))
sketch6.addConstraint(Sketcher.Constraint("Tangent", 17, 1, 18, 1))
sketch6.addConstraint(Sketcher.Constraint("Tangent", 18, 2, 19, 2))
sketch6.addConstraint(Sketcher.Constraint("Tangent", 19, 1, 16, 1))
sketch6.addConstraint(Sketcher.Constraint("Tangent", 20, 2, 21, 2))
sketch6.addConstraint(Sketcher.Constraint("Tangent", 21, 1, 22, 1))
sketch6.addConstraint(Sketcher.Constraint("Tangent", 22, 2, 23, 2))
sketch6.addConstraint(Sketcher.Constraint("Tangent", 23, 1, 20, 1))
sketch6.addConstraint(Sketcher.Constraint("Vertical", 0))
sketch6.addConstraint(Sketcher.Constraint("Horizontal", 1))
sketch6.addConstraint(Sketcher.Constraint("Vertical", 2))
sketch6.addConstraint(Sketcher.Constraint("Horizontal", 3))
sketch6.addConstraint(Sketcher.Constraint("Vertical", 5))
sketch6.addConstraint(Sketcher.Constraint("Vertical", 7))
sketch6.addConstraint(Sketcher.Constraint("Vertical", 8))
sketch6.addConstraint(Sketcher.Constraint("Vertical", 10))
sketch6.addConstraint(Sketcher.Constraint("Vertical", 12))
sketch6.addConstraint(Sketcher.Constraint("Horizontal", 13))
sketch6.addConstraint(Sketcher.Constraint("Vertical", 14))
sketch6.addConstraint(Sketcher.Constraint("Horizontal", 15))
sketch6.addConstraint(Sketcher.Constraint("Vertical", 16))
sketch6.addConstraint(Sketcher.Constraint("Vertical", 18))
sketch6.addConstraint(Sketcher.Constraint("Vertical", 20))
sketch6.addConstraint(Sketcher.Constraint("Vertical", 22))
sketch6.addConstraint(Sketcher.Constraint("Equal", 6, 9))
sketch6.addConstraint(Sketcher.Constraint("Equal", 11, 17))
sketch6.addConstraint(Sketcher.Constraint("Equal", 19, 21))
sketch6.addConstraint(Sketcher.Constraint("Symmetric", 6, 3, 9, 3, -1))
sketch6.addConstraint(Sketcher.Constraint("Symmetric", 19, 3, 21, 3, -1))
sketch6.addConstraint(Sketcher.Constraint("Horizontal", 4, 3, 17, 3))
sketch6.addConstraint(Sketcher.Constraint("Horizontal", 6, 3, 19, 3))
sketch6.addConstraint(Sketcher.Constraint("Horizontal", 11, 3, 23, 3))
sketch6.addConstraint(Sketcher.Constraint("Horizontal", 1, 2, 12, 2))
sketch6.addConstraint(Sketcher.Constraint("Horizontal", 3, 2, 14, 2))
sketch6.addConstraint(Sketcher.Constraint("Equal", 7, 8))
sketch6.addConstraint(Sketcher.Constraint("Radius", 4, Q("1.5 mm")))
sketch6.addConstraint(Sketcher.Constraint("DistanceX", 1, 1, 1, 2, Q("19 mm")))
sketch6.addConstraint(Sketcher.Constraint("DistanceX", 13, 1, 13, 2, Q("14 mm")))
sketch6.addConstraint(Sketcher.Constraint("DistanceY", 0, 2, 0, 1, Q("124 mm")))
sketch6.addConstraint(Sketcher.Constraint("DistanceY", 5, 2, 5, 1, Q("10 mm")))
sketch6.addConstraint(Sketcher.Constraint("DistanceX", -1, 1, 4, 3, Q("99 mm")))
sketch6.addConstraint(Sketcher.Constraint("DistanceX", 17, 3, -1, 1, Q("1 mm")))
sketch6.addConstraint(Sketcher.Constraint("DistanceX", -1, 1, 0, 2, Q("92 mm")))
sketch6.addConstraint(Sketcher.Constraint("DistanceY", 0, 2, -1, 1, Q("62 mm")))
sketch6.addConstraint(Sketcher.Constraint("DistanceX", 12, 2, -1, 1, Q("8 mm")))
sketch6.addConstraint(Sketcher.Constraint("DistanceY", 4, 3, 9, 3, Q("105 mm")))
pad4 = body.newObject("PartDesign::Pad", "Pad003")
pad4.Profile = sketch6
pad4.Length = 5
pad4.Reversed = True
doc.recompute()

fillet = body.newObject("PartDesign::Fillet", "Fillet")
fillet.Base = (pad4, edges_at(pad4, [
    (17, 2.5, -65),
    (24, 2.5, -65),
    (107, 2.5, -65),
    (24, 2.5, 65),
    (17, 2.5, 65),
    (107, 2.5, 65),
    (107, 47.5, -65),
    (107, 47.5, 65),
    (-104, 47.5, -65),
    (24, 47.5, -65),
    (17, 47.5, -65),
    (17, 47.5, 65),
    (24, 47.5, 65),
    (-104, 47.5, 65),
    (-69, 2.5, 65),
    (-69, 2.5, -65),
]))
fillet.Radius = 3

# Sketch on YZ plane
sketch7 = body.newObject("Sketcher::SketchObject", "Sketch006")
sketch7.AttachmentSupport = (doc.getObject("YZ_Plane"), [""])
sketch7.MapMode = "FlatFace"
sketch7.AttachmentOffset = App.Placement(Vector(0, 0, -8), App.Rotation())
add_polygon(sketch7, [(15, -62), (10, -62), (10, 62), (15, 62)])  # lines 0-3
sketch7.addConstraint(Sketcher.Constraint("Horizontal", 0))
sketch7.addConstraint(Sketcher.Constraint("Vertical", 1))
sketch7.addConstraint(Sketcher.Constraint("Horizontal", 2))
sketch7.addConstraint(Sketcher.Constraint("Vertical", 3))
sketch7.addConstraint(Sketcher.Constraint("DistanceX", 0, 2, 0, 1, Q("5 mm")))
sketch7.addConstraint(Sketcher.Constraint("DistanceY", 1, 1, 1, 2, Q("124 mm")))
sketch7.addConstraint(Sketcher.Constraint("DistanceX", -1, 1, 0, 2, Q("10 mm")))
sketch7.addConstraint(Sketcher.Constraint("DistanceY", 0, 2, -1, 1, Q("62 mm")))
pad5 = body.newObject("PartDesign::Pad", "Pad004")
pad5.Profile = sketch7
pad5.Length = 65
pad5.Reversed = True

# Sketch on XZ plane
sketch8 = body.newObject("Sketcher::SketchObject", "Sketch007")
sketch8.AttachmentSupport = (doc.getObject("XZ_Plane"), [""])
sketch8.MapMode = "FlatFace"
sketch8.AttachmentOffset = App.Placement(Vector(0, 0, -15), App.Rotation())
sketch8.addGeometry(Part.Circle(Vector(-60, 0, 0), Vector(0, 0, 1), 2), False)
sketch8.addGeometry(Part.Circle(Vector(-20, 0, 0), Vector(0, 0, 1), 2), False)
sketch8.addConstraint(Sketcher.Constraint("Equal", 0, 1))
sketch8.addConstraint(Sketcher.Constraint("PointOnObject", 0, 3, -1))
sketch8.addConstraint(Sketcher.Constraint("PointOnObject", 1, 3, -1))
sketch8.addConstraint(Sketcher.Constraint("Diameter", 0, Q("4 mm")))
sketch8.addConstraint(Sketcher.Constraint("DistanceX", 0, 3, -1, 1, Q("60 mm")))
sketch8.addConstraint(Sketcher.Constraint("DistanceX", 1, 3, -1, 1, Q("20 mm")))
pocket3 = body.newObject("PartDesign::Pocket", "Pocket002")
pocket3.Profile = sketch8
pocket3.Type = "ThroughAll"
pocket3.Reversed = True

doc.recompute()
